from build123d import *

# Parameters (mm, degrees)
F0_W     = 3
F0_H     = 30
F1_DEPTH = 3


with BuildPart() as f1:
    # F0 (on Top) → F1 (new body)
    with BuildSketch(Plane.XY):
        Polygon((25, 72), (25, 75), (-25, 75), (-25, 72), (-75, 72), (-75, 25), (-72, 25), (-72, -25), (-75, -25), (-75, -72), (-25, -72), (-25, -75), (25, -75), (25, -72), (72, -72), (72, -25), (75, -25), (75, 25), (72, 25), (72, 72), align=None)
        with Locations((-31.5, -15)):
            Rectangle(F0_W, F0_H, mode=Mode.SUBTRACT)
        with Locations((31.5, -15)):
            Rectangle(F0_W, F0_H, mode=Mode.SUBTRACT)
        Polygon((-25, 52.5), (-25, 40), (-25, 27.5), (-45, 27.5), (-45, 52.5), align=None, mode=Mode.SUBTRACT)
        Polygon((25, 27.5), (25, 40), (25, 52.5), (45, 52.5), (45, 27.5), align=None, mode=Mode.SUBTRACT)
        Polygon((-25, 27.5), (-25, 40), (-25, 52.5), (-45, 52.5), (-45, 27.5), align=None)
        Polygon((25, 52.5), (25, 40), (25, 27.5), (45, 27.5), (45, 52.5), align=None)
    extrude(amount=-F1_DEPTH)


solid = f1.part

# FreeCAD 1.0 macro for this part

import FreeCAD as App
import Part
import Sketcher


def add_polygon(sketch, points):
    """Adds a closed chain of lines whose ends are joined by coincident constraints."""
    first, n = sketch.GeometryCount, len(points)
    for a, b in zip(points, points[1:] + points[:1]):
        sketch.addGeometry(Part.LineSegment(App.Vector(*a, 0), App.Vector(*b, 0)), False)
    for i in range(n):
        sketch.addConstraint(Sketcher.Constraint("Coincident", first + i, 2, first + (i + 1) % n, 1))

doc = App.newDocument("Part")
body = doc.addObject("PartDesign::Body", "Body")

# Sketch on XY plane
sketch1 = body.newObject("Sketcher::SketchObject", "Sketch")
sketch1.AttachmentSupport = (doc.getObject("XY_Plane"), [""])
sketch1.MapMode = "FlatFace"
add_polygon(sketch1, [(25, 72), (25, 75), (-25, 75), (-25, 72), (-75, 72), (-75, 25), (-72, 25), (-72, -25), (-75, -25), (-75, -72), (-25, -72), (-25, -75), (25, -75), (25, -72), (72, -72), (72, -25), (75, -25), (75, 25), (72, 25), (72, 72)])  # lines 0-19
add_polygon(sketch1, [(-30, -30), (-33, -30), (-33, 0), (-30, 0)])  # lines 20-23
add_polygon(sketch1, [(33, -30), (30, -30), (30, 0), (33, 0)])  # lines 24-27
sketch1.addConstraint(Sketcher.Constraint("Vertical", 0))
sketch1.addConstraint(Sketcher.Constraint("Horizontal", 1))
sketch1.addConstraint(Sketcher.Constraint("Vertical", 2))
sketch1.addConstraint(Sketcher.Constraint("Horizontal", 3))
sketch1.addConstraint(Sketcher.Constraint("Vertical", 4))
sketch1.addConstraint(Sketcher.Constraint("Horizontal", 5))
sketch1.addConstraint(Sketcher.Constraint("Vertical", 6))
sketch1.addConstraint(Sketcher.Constraint("Horizontal", 7))
sketch1.addConstraint(Sketcher.Constraint("Vertical", 8))
sketch1.addConstraint(Sketcher.Constraint("Horizontal", 9))
sketch1.addConstraint(Sketcher.Constraint("Vertical", 10))
sketch1.addConstraint(Sketcher.Constraint("Horizontal", 11))
sketch1.addConstraint(Sketcher.Constraint("Vertical", 12))
sketch1.addConstraint(Sketcher.Constraint("Horizontal", 13))
sketch1.addConstraint(Sketcher.Constraint("Vertical", 14))
sketch1.addConstraint(Sketcher.Constraint("Horizontal", 15))
sketch1.addConstraint(Sketcher.Constraint("Vertical", 16))
sketch1.addConstraint(Sketcher.Constraint("Horizontal", 17))
sketch1.addConstraint(Sketcher.Constraint("Vertical", 18))
sketch1.addConstraint(Sketcher.Constraint("Horizontal", 19))
sketch1.addConstraint(Sketcher.Constraint("Horizontal", 20))
sketch1.addConstraint(Sketcher.Constraint("Vertical", 21))
sketch1.addConstraint(Sketcher.Constraint("Horizontal", 22))
sketch1.addConstraint(Sketcher.Constraint("Vertical", 23))
sketch1.addConstraint(Sketcher.Constraint("Horizontal", 24))
sketch1.addConstraint(Sketcher.Constraint("Vertical", 25))
sketch1.addConstraint(Sketcher.Constraint("Horizontal", 26))
sketch1.addConstraint(Sketcher.Constraint("Vertical", 27))
sketch1.addConstraint(Sketcher.Constraint("Symmetric", 0, 2, 10, 2, -1, 1))
sketch1.addConstraint(Sketcher.Constraint("Symmetric", 2, 2, 12, 2, -1, 1))
sketch1.addConstraint(Sketcher.Constraint("Symmetric", 5, 2, 14, 2, -1, 1))
sketch1.addConstraint(Sketcher.Constraint("Symmetric", 7, 2, 16, 2, -1, 1))
sketch1.addConstraint(Sketcher.Constraint("Symmetric", 22, 2, 25, 2, -1, 1))
sketch1.addConstraint(Sketcher.Constraint("Symmetric", 9, 2, 12, 2, -2))
sketch1.addConstraint(Sketcher.Constraint("Symmetric", 4, 2, 16, 2, -2))
sketch1.addConstraint(Sketcher.Constraint("Symmetric", 21, 2, 26, 2, -2))
sketch1.addConstraint(Sketcher.Constraint("Symmetric", 13, 2, 18, 2, -1))
sketch1.addConstraint(Sketcher.Constraint("Horizontal", 23, 2, 24, 2))
sketch1.addConstraint(Sketcher.Constraint("Equal", 1, 3))
sketch1.addConstraint(Sketcher.Constraint("Equal", 17, 20))
sketch1.addConstraint(Sketcher.Constraint("Equal", 26, 0))
sketch1.addConstraint(Sketcher.Constraint("Equal", 19, 4))
sketch1.addConstraint(Sketcher.Constraint("Equal", 11, 6))
sketch1.addConstraint(Sketcher.Constraint("DistanceX", 1, 2, 1, 1, 50.0))
sketch1.addConstraint(Sketcher.Constraint("DistanceX", 5, 1, 5, 2, 3.0))
sketch1.addConstraint(Sketcher.Constraint("DistanceY", 21, 1, 21, 2, 30.0))
sketch1.addConstraint(Sketcher.Constraint("DistanceX", 20, 2, -1, 1, 33.0))
pad1 = body.newObject("PartDesign::Pad", "Pad")
pad1.Profile = sketch1
pad1.Length = 3
pad1.Reversed = True

doc.recompute()
